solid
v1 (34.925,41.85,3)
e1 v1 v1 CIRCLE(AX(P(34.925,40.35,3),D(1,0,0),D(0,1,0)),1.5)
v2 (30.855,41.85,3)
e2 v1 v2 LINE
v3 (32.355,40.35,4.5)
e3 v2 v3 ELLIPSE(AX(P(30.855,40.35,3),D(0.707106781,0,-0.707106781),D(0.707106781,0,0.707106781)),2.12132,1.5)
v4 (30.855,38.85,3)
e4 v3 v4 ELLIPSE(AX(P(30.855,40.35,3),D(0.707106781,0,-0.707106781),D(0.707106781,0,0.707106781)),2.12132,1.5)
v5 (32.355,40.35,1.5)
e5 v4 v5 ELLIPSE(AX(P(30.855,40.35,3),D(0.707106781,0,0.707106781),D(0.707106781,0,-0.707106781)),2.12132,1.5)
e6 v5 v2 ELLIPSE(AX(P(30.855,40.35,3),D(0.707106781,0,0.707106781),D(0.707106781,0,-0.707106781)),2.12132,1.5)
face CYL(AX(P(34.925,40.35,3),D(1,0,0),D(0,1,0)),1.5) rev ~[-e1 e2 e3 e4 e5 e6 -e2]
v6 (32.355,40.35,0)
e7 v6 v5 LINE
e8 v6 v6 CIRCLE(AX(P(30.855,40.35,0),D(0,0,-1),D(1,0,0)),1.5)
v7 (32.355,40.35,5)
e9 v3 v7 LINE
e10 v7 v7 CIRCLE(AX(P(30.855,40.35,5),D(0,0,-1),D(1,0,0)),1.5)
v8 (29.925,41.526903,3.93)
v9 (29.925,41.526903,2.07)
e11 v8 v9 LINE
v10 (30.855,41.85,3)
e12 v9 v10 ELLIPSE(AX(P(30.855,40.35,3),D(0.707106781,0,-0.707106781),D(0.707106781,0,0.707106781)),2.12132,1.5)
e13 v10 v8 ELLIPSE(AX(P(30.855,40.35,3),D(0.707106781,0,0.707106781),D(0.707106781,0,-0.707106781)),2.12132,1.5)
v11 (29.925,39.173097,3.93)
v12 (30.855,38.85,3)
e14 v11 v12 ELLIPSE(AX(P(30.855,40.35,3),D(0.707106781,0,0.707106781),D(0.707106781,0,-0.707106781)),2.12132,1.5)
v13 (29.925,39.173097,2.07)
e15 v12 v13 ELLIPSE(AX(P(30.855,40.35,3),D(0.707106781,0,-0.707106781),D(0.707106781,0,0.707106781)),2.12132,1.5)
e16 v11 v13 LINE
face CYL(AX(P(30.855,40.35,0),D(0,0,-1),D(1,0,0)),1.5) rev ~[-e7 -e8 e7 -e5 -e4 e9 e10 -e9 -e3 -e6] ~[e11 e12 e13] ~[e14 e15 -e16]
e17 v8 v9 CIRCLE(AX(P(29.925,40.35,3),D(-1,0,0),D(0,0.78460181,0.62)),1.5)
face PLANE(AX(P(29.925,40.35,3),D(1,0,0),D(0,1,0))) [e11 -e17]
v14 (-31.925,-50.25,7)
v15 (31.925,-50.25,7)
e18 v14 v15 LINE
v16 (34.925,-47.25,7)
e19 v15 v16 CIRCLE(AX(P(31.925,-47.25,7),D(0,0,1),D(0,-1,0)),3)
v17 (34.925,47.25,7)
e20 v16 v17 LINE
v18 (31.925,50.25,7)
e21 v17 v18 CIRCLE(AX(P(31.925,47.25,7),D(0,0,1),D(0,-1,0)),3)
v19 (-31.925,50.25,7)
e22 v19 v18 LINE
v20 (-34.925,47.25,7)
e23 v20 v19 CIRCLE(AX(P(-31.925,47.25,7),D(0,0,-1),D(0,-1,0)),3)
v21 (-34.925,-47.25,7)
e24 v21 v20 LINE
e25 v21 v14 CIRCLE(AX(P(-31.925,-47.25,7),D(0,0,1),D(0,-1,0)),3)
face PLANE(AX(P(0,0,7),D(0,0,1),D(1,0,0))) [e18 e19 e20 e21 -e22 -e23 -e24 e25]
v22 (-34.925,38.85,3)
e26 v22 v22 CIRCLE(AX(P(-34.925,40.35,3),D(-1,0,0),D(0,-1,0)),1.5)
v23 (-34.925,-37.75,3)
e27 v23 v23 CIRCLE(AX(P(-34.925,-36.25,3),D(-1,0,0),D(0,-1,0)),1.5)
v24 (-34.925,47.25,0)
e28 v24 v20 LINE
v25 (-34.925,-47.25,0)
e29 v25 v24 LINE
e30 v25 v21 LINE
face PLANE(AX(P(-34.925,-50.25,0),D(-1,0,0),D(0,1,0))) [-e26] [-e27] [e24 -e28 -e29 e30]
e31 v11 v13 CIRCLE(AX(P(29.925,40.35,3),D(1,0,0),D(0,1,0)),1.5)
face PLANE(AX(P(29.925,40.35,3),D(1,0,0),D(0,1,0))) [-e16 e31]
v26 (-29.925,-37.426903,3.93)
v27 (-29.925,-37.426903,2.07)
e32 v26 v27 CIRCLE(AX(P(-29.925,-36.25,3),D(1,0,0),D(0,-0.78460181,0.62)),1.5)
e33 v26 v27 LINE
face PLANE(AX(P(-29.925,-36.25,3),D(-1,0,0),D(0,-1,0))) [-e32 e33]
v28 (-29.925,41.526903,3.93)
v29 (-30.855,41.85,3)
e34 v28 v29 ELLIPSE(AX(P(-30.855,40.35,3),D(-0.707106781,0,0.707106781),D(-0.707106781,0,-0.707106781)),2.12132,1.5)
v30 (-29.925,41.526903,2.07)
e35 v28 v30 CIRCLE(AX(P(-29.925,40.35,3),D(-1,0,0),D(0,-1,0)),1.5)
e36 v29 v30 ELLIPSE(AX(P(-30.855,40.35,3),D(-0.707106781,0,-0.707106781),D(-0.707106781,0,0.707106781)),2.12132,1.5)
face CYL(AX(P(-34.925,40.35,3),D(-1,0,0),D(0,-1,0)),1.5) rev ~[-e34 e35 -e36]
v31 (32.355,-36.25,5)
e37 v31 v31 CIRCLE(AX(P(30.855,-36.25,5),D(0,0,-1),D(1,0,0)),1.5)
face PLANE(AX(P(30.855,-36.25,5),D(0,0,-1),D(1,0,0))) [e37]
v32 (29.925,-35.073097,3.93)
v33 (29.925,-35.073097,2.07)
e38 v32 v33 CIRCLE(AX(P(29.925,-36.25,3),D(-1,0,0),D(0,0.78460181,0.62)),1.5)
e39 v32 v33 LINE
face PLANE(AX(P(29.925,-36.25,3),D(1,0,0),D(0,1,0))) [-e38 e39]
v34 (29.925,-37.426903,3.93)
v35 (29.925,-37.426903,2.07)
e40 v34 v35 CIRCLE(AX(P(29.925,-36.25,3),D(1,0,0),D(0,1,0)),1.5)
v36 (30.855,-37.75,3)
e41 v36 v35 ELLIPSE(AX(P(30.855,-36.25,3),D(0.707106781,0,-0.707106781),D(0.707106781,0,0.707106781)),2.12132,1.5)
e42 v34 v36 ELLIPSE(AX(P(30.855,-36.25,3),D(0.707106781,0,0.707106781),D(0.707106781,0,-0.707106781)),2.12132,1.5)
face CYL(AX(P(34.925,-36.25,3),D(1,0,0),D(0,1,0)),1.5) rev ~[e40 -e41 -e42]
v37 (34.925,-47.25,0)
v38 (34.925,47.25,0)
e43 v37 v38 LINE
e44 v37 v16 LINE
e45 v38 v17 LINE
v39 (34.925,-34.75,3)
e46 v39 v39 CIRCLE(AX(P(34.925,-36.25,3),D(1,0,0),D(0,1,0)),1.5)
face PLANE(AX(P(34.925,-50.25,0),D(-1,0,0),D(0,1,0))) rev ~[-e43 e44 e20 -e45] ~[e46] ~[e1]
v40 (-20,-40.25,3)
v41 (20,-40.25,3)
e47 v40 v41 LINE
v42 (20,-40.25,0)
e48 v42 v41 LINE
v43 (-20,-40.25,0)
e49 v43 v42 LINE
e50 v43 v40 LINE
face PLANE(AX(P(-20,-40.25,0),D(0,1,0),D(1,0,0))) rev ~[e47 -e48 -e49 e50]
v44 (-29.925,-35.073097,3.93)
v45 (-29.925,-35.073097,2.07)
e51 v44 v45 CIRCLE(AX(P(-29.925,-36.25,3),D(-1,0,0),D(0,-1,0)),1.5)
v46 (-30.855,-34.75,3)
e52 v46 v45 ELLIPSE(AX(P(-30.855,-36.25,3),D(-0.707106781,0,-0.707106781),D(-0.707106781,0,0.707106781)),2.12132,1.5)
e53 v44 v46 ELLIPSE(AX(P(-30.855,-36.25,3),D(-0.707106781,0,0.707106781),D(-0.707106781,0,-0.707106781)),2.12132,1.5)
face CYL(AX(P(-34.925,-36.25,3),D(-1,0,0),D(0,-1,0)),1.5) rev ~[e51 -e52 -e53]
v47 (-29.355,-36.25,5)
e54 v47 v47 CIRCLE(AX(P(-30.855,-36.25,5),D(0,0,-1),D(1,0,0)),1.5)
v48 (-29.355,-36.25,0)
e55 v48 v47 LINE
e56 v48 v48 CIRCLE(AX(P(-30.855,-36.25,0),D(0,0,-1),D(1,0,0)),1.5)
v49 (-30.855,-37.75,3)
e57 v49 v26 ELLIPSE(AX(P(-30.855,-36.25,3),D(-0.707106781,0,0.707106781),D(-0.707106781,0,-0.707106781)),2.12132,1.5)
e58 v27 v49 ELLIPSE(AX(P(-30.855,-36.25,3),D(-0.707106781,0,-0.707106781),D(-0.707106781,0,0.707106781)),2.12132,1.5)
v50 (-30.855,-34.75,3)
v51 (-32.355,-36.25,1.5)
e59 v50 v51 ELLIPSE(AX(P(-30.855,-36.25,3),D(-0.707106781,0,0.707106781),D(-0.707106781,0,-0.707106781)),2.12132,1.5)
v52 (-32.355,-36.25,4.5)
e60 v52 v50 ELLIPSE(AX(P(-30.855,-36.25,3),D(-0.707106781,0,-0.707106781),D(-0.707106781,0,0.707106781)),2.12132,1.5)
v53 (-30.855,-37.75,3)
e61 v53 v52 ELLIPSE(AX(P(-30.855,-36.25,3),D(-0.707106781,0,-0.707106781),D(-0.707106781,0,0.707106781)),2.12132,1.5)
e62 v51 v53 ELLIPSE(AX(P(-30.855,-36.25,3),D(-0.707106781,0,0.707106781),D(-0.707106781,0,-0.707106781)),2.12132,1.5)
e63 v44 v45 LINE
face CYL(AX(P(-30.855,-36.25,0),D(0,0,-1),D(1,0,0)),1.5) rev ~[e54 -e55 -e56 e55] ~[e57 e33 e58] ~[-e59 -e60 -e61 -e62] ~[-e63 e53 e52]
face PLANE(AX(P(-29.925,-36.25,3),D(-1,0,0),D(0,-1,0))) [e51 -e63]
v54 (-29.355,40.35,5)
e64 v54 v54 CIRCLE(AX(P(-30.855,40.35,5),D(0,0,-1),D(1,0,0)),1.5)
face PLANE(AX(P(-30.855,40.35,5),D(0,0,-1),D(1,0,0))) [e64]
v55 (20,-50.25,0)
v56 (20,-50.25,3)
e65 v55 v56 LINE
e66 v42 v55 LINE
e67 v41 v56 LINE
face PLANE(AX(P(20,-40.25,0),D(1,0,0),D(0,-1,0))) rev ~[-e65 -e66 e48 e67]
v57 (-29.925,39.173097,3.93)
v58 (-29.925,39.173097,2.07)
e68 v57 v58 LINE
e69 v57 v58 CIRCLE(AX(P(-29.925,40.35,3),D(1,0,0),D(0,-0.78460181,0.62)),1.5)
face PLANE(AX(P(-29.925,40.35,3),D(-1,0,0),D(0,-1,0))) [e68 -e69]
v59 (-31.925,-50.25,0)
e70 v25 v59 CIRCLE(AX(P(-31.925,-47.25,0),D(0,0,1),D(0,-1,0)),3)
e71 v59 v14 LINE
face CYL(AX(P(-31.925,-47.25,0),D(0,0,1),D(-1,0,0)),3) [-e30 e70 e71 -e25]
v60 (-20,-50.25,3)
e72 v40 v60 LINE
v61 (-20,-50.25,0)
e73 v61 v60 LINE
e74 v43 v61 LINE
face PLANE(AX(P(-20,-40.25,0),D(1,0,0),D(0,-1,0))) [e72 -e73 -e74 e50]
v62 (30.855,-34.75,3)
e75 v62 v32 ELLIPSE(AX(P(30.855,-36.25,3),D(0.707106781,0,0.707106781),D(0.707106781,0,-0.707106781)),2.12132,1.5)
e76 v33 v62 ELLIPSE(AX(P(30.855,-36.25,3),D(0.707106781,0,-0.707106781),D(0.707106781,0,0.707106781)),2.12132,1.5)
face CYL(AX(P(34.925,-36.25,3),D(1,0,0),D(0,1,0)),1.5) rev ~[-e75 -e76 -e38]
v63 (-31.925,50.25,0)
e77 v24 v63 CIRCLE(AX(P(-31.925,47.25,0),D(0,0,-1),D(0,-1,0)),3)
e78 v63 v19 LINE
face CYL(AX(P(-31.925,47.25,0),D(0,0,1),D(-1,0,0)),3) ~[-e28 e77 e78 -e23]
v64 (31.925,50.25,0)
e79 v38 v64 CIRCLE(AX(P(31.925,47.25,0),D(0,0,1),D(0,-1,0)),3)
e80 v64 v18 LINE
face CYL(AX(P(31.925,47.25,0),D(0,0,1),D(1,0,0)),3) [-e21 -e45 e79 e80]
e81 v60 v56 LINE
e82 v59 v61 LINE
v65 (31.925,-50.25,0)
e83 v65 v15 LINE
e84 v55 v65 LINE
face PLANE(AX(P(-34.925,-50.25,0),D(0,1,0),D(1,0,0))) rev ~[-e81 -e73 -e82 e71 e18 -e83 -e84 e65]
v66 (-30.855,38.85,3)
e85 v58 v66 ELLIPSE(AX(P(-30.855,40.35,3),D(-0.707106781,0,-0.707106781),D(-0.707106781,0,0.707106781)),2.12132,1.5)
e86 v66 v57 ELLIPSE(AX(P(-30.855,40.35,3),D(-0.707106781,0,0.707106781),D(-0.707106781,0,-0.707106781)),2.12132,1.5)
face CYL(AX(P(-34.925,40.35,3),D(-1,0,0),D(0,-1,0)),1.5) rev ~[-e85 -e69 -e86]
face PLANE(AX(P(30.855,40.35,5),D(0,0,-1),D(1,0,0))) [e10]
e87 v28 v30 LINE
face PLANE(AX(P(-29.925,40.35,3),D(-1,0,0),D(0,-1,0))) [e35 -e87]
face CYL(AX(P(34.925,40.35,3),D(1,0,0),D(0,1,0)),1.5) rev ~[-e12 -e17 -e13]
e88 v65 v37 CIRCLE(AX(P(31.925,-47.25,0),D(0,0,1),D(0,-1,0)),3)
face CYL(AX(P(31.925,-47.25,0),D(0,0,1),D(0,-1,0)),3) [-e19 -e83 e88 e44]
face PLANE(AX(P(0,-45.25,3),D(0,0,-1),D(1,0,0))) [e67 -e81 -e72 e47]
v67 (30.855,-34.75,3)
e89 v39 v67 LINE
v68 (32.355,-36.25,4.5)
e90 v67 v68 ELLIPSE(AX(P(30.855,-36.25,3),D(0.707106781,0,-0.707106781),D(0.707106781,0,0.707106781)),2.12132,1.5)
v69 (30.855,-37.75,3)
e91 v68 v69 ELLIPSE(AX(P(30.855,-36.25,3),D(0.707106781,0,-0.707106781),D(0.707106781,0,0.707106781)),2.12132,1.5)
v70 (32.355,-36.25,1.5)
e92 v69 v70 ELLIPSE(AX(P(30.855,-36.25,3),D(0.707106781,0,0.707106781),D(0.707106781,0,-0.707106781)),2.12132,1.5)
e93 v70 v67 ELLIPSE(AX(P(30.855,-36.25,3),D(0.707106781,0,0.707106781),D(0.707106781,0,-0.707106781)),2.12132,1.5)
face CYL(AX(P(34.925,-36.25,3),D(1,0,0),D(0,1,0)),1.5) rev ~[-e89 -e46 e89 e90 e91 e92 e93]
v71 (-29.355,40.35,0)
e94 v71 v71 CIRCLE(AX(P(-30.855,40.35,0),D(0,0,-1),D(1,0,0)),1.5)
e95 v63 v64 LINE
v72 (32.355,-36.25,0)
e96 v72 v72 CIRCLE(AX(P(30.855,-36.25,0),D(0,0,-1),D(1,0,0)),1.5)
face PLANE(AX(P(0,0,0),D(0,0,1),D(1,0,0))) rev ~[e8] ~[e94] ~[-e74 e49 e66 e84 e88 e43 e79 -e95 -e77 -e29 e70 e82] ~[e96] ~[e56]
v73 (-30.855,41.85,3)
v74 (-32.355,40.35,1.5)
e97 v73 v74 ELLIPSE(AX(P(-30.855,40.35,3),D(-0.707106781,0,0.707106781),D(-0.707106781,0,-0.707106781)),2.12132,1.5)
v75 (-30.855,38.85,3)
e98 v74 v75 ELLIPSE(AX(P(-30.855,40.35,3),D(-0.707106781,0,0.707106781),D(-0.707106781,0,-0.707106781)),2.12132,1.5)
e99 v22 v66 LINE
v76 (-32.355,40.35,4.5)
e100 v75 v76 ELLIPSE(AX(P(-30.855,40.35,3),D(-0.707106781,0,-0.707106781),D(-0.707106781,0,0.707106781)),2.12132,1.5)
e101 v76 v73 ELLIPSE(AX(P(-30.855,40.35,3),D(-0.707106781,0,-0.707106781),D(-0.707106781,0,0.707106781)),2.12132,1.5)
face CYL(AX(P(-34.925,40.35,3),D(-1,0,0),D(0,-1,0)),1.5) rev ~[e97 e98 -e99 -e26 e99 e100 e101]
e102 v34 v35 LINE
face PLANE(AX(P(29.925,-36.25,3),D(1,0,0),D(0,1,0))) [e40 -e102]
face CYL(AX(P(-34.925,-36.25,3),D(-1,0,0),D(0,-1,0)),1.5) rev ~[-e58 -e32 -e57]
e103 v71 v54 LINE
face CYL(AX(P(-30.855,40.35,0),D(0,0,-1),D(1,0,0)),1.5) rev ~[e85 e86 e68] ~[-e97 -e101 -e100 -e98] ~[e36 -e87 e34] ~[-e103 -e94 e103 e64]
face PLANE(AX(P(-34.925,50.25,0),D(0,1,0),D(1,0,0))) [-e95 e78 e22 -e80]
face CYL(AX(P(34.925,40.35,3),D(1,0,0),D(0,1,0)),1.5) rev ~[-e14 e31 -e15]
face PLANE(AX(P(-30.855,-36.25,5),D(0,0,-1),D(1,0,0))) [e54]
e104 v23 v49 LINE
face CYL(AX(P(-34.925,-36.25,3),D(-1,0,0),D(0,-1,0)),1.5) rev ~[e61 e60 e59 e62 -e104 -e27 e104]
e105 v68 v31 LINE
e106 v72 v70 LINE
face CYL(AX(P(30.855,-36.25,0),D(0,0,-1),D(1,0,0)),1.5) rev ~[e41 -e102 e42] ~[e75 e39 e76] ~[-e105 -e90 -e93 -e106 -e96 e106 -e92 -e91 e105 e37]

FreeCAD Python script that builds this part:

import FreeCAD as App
import Part
import Sketcher
from FreeCAD import Vector


def edges_at(feature, points):
    """Names of the edges that pass closest to the given points."""
    edges = feature.Shape.Edges
    near = lambda p: min(range(len(edges)), key=lambda i: edges[i].distToShape(Part.Vertex(*p))[0])
    return sorted({f"Edge{near(p) + 1}" for p in points})

doc = App.newDocument("Part")
body = doc.addObject("PartDesign::Body", "Body")

# Sketch on XY plane
sketch1 = doc.addObject("Sketcher::SketchObject", "Sketch")
body.addObject(sketch1)
sketch1.AttachmentSupport = (doc.XY_Plane, [""])
sketch1.MapMode = "FlatFace"
sketch1.addGeometry(Part.LineSegment(Vector(-35, 50, 0), Vector(-35, -50, 0)), False)
sketch1.addGeometry(Part.LineSegment(Vector(-35, -50, 0), Vector(35, -50, 0)), False)
sketch1.addGeometry(Part.LineSegment(Vector(35, -50, 0), Vector(35, 50, 0)), False)
sketch1.addGeometry(Part.LineSegment(Vector(35, 50, 0), Vector(-35, 50, 0)), False)
sketch1.addConstraint(Sketcher.Constraint("Coincident", 0, 2, 1, 1))
sketch1.addConstraint(Sketcher.Constraint("Coincident", 1, 2, 2, 1))
sketch1.addConstraint(Sketcher.Constraint("Coincident", 2, 2, 3, 1))
sketch1.addConstraint(Sketcher.Constraint("Coincident", 3, 2, 0, 1))
sketch1.addConstraint(Sketcher.Constraint("Vertical", 0))
sketch1.addConstraint(Sketcher.Constraint("Horizontal", 1))
sketch1.addConstraint(Sketcher.Constraint("Vertical", 2))
sketch1.addConstraint(Sketcher.Constraint("Horizontal", 3))
sketch1.addConstraint(Sketcher.Constraint("Symmetric", 0, 2, 2, 2, -1, 1))
sketch1.addConstraint(Sketcher.Constraint("DistanceY", 0, 2, 0, 1, 100.5))
sketch1.addConstraint(Sketcher.Constraint("DistanceX", 1, 1, 1, 2, 69.85))
pad1 = doc.addObject("PartDesign::Pad", "Pad")
body.addObject(pad1)
pad1.Profile = sketch1
pad1.Length = 7
doc.recompute()

fillet = doc.addObject("PartDesign::Fillet", "Fillet")
body.addObject(fillet)
fillet.Base = (pad1, edges_at(pad1, [
    (34.925, 50.25, 3.5),
    (-34.925, 50.25, 3.5),
    (34.925, -50.25, 3.5),
    (-34.925, -50.25, 3.5),
]))
fillet.Radius = 3

# Sketch on YZ plane
sketch2 = doc.addObject("Sketcher::SketchObject", "Sketch001")
body.addObject(sketch2)
sketch2.AttachmentSupport = (doc.YZ_Plane, [""])
sketch2.MapMode = "FlatFace"
sketch2.AttachmentOffset = App.Placement(Vector(0, 0, 34.925), App.Rotation())
sketch2.addGeometry(Part.Circle(Vector(-36.2, 3, 0), Vector(0, 0, 1), 1.5), False)
sketch2.addGeometry(Part.Circle(Vector(40.4, 3, 0), Vector(0, 0, 1), 1.5), False)
sketch2.addConstraint(Sketcher.Constraint("Equal", 0, 1))
sketch2.addConstraint(Sketcher.Constraint("Horizontal", 0, 3, 1, 3))
sketch2.addConstraint(Sketcher.Constraint("Diameter", 0, 3.0))
sketch2.addConstraint(Sketcher.Constraint("DistanceY", -1, 1, 0, 3, 3.0))
sketch2.addConstraint(Sketcher.Constraint("DistanceX", 0, 3, 1, 3, 76.6))
sketch2.addConstraint(Sketcher.Constraint("DistanceX", 0, 3, -1, 1, 36.25))
pocket1 = doc.addObject("PartDesign::Pocket", "Pocket")
body.addObject(pocket1)
pocket1.Profile = sketch2
pocket1.Length = 5

# Sketch on YZ plane
sketch3 = doc.addObject("Sketcher::SketchObject", "Sketch002")
body.addObject(sketch3)
sketch3.AttachmentSupport = (doc.YZ_Plane, [""])
sketch3.MapMode = "FlatFace"
sketch3.AttachmentOffset = App.Placement(Vector(0, 0, -34.925), App.Rotation())
sketch3.addGeometry(Part.Circle(Vector(-36.2, 3, 0), Vector(0, 0, 1), 1.5), False)
sketch3.addGeometry(Part.Circle(Vector(40.4, 3, 0), Vector(0, 0, 1), 1.5), False)
sketch3.addConstraint(Sketcher.Constraint("Equal", 0, 1))
sketch3.addConstraint(Sketcher.Constraint("Horizontal", 0, 3, 1, 3))
sketch3.addConstraint(Sketcher.Constraint("Diameter", 0, 3.0))
sketch3.addConstraint(Sketcher.Constraint("DistanceY", -1, 1, 0, 3, 3.0))
sketch3.addConstraint(Sketcher.Constraint("DistanceX", 0, 3, 1, 3, 76.6))
sketch3.addConstraint(Sketcher.Constraint("DistanceX", 0, 3, -1, 1, 36.25))
pocket2 = doc.addObject("PartDesign::Pocket", "Pocket001")
body.addObject(pocket2)
pocket2.Profile = sketch3
pocket2.Length = 5
pocket2.Reversed = True

# Sketch on XY plane
sketch4 = doc.addObject("Sketcher::SketchObject", "Sketch003")
body.addObject(sketch4)
sketch4.AttachmentSupport = (doc.XY_Plane, [""])
sketch4.MapMode = "FlatFace"
sketch4.addGeometry(Part.LineSegment(Vector(-20, -50, 0), Vector(-20, -40, 0)), False)
sketch4.addGeometry(Part.LineSegment(Vector(-20, -40, 0), Vector(20, -40, 0)), False)
sketch4.addGeometry(Part.LineSegment(Vector(20, -40, 0), Vector(20, -50, 0)), False)
sketch4.addGeometry(Part.LineSegment(Vector(20, -50, 0), Vector(-20, -50, 0)), False)
sketch4.addConstraint(Sketcher.Constraint("Coincident", 0, 2, 1, 1))
sketch4.addConstraint(Sketcher.Constraint("Coincident", 1, 2, 2, 1))
sketch4.addConstraint(Sketcher.Constraint("Coincident", 2, 2, 3, 1))
sketch4.addConstraint(Sketcher.Constraint("Coincident", 3, 2, 0, 1))
sketch4.addConstraint(Sketcher.Constraint("Vertical", 0))
sketch4.addConstraint(Sketcher.Constraint("Horizontal", 1))
sketch4.addConstraint(Sketcher.Constraint("Vertical", 2))
sketch4.addConstraint(Sketcher.Constraint("Horizontal", 3))
sketch4.addConstraint(Sketcher.Constraint("DistanceX", 1, 1, 1, 2, 40.0))
sketch4.addConstraint(Sketcher.Constraint("DistanceY", 0, 1, 0, 2, 10.0))
sketch4.addConstraint(Sketcher.Constraint("DistanceX", 0, 2, -1, 1, 20.0))
sketch4.addConstraint(Sketcher.Constraint("DistanceY", 0, 2, -1, 1, 40.25))
pocket3 = doc.addObject("PartDesign::Pocket", "Pocket002")
body.addObject(pocket3)
pocket3.Profile = sketch4
pocket3.Length = 3
pocket3.Reversed = True

# Sketch on XY plane
sketch5 = doc.addObject("Sketcher::SketchObject", "Sketch004")
body.addObject(sketch5)
sketch5.AttachmentSupport = (doc.XY_Plane, [""])
sketch5.MapMode = "FlatFace"
sketch5.addGeometry(Part.Circle(Vector(-30.9, -36.2, 0), Vector(0, 0, 1), 1.5), False)
sketch5.addGeometry(Part.Circle(Vector(-30.9, 40.4, 0), Vector(0, 0, 1), 1.5), False)
sketch5.addGeometry(Part.Circle(Vector(30.9, 40.4, 0), Vector(0, 0, 1), 1.5), False)
sketch5.addGeometry(Part.Circle(Vector(30.9, -36.2, 0), Vector(0, 0, 1), 1.5), False)
sketch5.addConstraint(Sketcher.Constraint("Equal", 0, 1))
sketch5.addConstraint(Sketcher.Constraint("Equal", 1, 2))
sketch5.addConstraint(Sketcher.Constraint("Equal", 2, 3))
sketch5.addConstraint(Sketcher.Constraint("Symmetric", 1, 3, 2, 3, -2))
sketch5.addConstraint(Sketcher.Constraint("Symmetric", 0, 3, 3, 3, -2))
sketch5.addConstraint(Sketcher.Constraint("Vertical", 0, 3, 1, 3))
sketch5.addConstraint(Sketcher.Constraint("Diameter", 0, 3.0))
sketch5.addConstraint(Sketcher.Constraint("DistanceY", 0, 3, 1, 3, 76.6))
sketch5.addConstraint(Sketcher.Constraint("DistanceY", 0, 3, -1, 1, 36.25))
sketch5.addConstraint(Sketcher.Constraint("DistanceX", 1, 3, 2, 3, 61.71))
pocket4 = doc.addObject("PartDesign::Pocket", "Pocket003")
body.addObject(pocket4)
pocket4.Profile = sketch5
pocket4.Length = 5
pocket4.Reversed = True

doc.recompute()
